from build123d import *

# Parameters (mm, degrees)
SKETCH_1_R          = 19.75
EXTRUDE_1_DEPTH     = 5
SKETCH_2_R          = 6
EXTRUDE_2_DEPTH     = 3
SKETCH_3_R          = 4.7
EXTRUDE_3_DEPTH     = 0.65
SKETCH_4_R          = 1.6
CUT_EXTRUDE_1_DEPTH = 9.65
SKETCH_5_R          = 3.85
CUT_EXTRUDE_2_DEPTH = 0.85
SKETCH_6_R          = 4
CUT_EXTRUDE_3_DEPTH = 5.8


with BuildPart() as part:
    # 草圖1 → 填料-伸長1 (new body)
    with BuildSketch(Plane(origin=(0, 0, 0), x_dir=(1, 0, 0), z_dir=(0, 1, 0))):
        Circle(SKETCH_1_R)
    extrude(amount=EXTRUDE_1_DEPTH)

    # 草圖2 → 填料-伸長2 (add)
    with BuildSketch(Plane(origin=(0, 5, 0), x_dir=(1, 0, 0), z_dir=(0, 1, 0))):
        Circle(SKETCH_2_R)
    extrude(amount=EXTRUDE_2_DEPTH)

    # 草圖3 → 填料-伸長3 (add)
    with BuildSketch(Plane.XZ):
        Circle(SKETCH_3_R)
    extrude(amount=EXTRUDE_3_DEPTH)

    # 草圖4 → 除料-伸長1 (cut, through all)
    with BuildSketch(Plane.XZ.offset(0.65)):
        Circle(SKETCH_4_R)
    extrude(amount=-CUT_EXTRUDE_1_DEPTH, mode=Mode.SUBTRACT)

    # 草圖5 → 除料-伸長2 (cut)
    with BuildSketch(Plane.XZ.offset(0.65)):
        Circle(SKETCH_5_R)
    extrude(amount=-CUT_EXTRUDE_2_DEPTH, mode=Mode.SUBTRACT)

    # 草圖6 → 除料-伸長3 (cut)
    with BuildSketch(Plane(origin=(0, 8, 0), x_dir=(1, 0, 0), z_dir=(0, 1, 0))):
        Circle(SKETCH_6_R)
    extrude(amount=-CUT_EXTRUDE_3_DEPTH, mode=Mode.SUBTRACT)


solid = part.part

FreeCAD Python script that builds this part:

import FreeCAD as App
import Part
import Sketcher

V = App.Vector
Q = App.Units.Quantity

doc = App.newDocument("Part")
body = doc.addObject("PartDesign::Body", "Body")

sketch1 = body.newObject("Sketcher::SketchObject", "Sketch")
sketch1.AttachmentSupport = (doc.getObject("XZ_Plane"), [""])
sketch1.MapMode = "FlatFace"
sketch1.addGeometry(Part.Circle(V(0, 0, 0), V(0, 0, 1), 20), False)
sketch1.addConstraint(Sketcher.Constraint("Coincident", 0, 3, -1, 1))
sketch1.addConstraint(Sketcher.Constraint("Diameter", 0, Q("39.5 mm")))
pad1 = body.newObject("PartDesign::Pad", "Pad")
pad1.Profile = sketch1
pad1.Length = 5
pad1.Reversed = True

sketch2 = body.newObject("Sketcher::SketchObject", "Sketch001")
sketch2.AttachmentSupport = (doc.getObject("XZ_Plane"), [""])
sketch2.MapMode = "FlatFace"
sketch2.AttachmentOffset = App.Placement(V(0, 0, -5), App.Rotation())
sketch2.addGeometry(Part.Circle(V(0, 0, 0), V(0, 0, 1), 6), False)
sketch2.addConstraint(Sketcher.Constraint("Coincident", 0, 3, -1, 1))
sketch2.addConstraint(Sketcher.Constraint("Diameter", 0, Q("12 mm")))
pad2 = body.newObject("PartDesign::Pad", "Pad001")
pad2.Profile = sketch2
pad2.Length = 3
pad2.Reversed = True

sketch3 = body.newObject("Sketcher::SketchObject", "Sketch002")
sketch3.AttachmentSupport = (doc.getObject("XZ_Plane"), [""])
sketch3.MapMode = "FlatFace"
sketch3.addGeometry(Part.Circle(V(0, 0, 0), V(0, 0, 1), 4.7), False)
sketch3.addConstraint(Sketcher.Constraint("Coincident", 0, 3, -1, 1))
sketch3.addConstraint(Sketcher.Constraint("Diameter", 0, Q("9.4 mm")))
pad3 = body.newObject("PartDesign::Pad", "Pad002")
pad3.Profile = sketch3
pad3.Length = 0.65

sketch4 = body.newObject("Sketcher::SketchObject", "Sketch003")
sketch4.AttachmentSupport = (doc.getObject("XZ_Plane"), [""])
sketch4.MapMode = "FlatFace"
sketch4.AttachmentOffset = App.Placement(V(0, 0, 0.65), App.Rotation())
sketch4.addGeometry(Part.Circle(V(0, 0, 0), V(0, 0, 1), 1.6), False)
sketch4.addConstraint(Sketcher.Constraint("Coincident", 0, 3, -1, 1))
sketch4.addConstraint(Sketcher.Constraint("Diameter", 0, Q("3.2 mm")))
pocket1 = body.newObject("PartDesign::Pocket", "Pocket")
pocket1.Profile = sketch4
pocket1.Type = "ThroughAll"

sketch5 = body.newObject("Sketcher::SketchObject", "Sketch004")
sketch5.AttachmentSupport = (doc.getObject("XZ_Plane"), [""])
sketch5.MapMode = "FlatFace"
sketch5.AttachmentOffset = App.Placement(V(0, 0, 0.65), App.Rotation())
sketch5.addGeometry(Part.Circle(V(0, 0, 0), V(0, 0, 1), 3.9), False)
sketch5.addConstraint(Sketcher.Constraint("Coincident", 0, 3, -1, 1))
sketch5.addConstraint(Sketcher.Constraint("Diameter", 0, Q("7.7 mm")))
pocket2 = body.newObject("PartDesign::Pocket", "Pocket001")
pocket2.Profile = sketch5
pocket2.Length = 0.85

sketch6 = body.newObject("Sketcher::SketchObject", "Sketch005")
sketch6.AttachmentSupport = (doc.getObject("XZ_Plane"), [""])
sketch6.MapMode = "FlatFace"
sketch6.AttachmentOffset = App.Placement(V(0, 0, -8), App.Rotation())
sketch6.addGeometry(Part.Circle(V(0, 0, 0), V(0, 0, 1), 4), False)
sketch6.addConstraint(Sketcher.Constraint("Coincident", 0, 3, -1, 1))
sketch6.addConstraint(Sketcher.Constraint("Diameter", 0, Q("8 mm")))
pocket3 = body.newObject("PartDesign::Pocket", "Pocket002")
pocket3.Profile = sketch6
pocket3.Length = 5.8
pocket3.Reversed = True

doc.recompute()
